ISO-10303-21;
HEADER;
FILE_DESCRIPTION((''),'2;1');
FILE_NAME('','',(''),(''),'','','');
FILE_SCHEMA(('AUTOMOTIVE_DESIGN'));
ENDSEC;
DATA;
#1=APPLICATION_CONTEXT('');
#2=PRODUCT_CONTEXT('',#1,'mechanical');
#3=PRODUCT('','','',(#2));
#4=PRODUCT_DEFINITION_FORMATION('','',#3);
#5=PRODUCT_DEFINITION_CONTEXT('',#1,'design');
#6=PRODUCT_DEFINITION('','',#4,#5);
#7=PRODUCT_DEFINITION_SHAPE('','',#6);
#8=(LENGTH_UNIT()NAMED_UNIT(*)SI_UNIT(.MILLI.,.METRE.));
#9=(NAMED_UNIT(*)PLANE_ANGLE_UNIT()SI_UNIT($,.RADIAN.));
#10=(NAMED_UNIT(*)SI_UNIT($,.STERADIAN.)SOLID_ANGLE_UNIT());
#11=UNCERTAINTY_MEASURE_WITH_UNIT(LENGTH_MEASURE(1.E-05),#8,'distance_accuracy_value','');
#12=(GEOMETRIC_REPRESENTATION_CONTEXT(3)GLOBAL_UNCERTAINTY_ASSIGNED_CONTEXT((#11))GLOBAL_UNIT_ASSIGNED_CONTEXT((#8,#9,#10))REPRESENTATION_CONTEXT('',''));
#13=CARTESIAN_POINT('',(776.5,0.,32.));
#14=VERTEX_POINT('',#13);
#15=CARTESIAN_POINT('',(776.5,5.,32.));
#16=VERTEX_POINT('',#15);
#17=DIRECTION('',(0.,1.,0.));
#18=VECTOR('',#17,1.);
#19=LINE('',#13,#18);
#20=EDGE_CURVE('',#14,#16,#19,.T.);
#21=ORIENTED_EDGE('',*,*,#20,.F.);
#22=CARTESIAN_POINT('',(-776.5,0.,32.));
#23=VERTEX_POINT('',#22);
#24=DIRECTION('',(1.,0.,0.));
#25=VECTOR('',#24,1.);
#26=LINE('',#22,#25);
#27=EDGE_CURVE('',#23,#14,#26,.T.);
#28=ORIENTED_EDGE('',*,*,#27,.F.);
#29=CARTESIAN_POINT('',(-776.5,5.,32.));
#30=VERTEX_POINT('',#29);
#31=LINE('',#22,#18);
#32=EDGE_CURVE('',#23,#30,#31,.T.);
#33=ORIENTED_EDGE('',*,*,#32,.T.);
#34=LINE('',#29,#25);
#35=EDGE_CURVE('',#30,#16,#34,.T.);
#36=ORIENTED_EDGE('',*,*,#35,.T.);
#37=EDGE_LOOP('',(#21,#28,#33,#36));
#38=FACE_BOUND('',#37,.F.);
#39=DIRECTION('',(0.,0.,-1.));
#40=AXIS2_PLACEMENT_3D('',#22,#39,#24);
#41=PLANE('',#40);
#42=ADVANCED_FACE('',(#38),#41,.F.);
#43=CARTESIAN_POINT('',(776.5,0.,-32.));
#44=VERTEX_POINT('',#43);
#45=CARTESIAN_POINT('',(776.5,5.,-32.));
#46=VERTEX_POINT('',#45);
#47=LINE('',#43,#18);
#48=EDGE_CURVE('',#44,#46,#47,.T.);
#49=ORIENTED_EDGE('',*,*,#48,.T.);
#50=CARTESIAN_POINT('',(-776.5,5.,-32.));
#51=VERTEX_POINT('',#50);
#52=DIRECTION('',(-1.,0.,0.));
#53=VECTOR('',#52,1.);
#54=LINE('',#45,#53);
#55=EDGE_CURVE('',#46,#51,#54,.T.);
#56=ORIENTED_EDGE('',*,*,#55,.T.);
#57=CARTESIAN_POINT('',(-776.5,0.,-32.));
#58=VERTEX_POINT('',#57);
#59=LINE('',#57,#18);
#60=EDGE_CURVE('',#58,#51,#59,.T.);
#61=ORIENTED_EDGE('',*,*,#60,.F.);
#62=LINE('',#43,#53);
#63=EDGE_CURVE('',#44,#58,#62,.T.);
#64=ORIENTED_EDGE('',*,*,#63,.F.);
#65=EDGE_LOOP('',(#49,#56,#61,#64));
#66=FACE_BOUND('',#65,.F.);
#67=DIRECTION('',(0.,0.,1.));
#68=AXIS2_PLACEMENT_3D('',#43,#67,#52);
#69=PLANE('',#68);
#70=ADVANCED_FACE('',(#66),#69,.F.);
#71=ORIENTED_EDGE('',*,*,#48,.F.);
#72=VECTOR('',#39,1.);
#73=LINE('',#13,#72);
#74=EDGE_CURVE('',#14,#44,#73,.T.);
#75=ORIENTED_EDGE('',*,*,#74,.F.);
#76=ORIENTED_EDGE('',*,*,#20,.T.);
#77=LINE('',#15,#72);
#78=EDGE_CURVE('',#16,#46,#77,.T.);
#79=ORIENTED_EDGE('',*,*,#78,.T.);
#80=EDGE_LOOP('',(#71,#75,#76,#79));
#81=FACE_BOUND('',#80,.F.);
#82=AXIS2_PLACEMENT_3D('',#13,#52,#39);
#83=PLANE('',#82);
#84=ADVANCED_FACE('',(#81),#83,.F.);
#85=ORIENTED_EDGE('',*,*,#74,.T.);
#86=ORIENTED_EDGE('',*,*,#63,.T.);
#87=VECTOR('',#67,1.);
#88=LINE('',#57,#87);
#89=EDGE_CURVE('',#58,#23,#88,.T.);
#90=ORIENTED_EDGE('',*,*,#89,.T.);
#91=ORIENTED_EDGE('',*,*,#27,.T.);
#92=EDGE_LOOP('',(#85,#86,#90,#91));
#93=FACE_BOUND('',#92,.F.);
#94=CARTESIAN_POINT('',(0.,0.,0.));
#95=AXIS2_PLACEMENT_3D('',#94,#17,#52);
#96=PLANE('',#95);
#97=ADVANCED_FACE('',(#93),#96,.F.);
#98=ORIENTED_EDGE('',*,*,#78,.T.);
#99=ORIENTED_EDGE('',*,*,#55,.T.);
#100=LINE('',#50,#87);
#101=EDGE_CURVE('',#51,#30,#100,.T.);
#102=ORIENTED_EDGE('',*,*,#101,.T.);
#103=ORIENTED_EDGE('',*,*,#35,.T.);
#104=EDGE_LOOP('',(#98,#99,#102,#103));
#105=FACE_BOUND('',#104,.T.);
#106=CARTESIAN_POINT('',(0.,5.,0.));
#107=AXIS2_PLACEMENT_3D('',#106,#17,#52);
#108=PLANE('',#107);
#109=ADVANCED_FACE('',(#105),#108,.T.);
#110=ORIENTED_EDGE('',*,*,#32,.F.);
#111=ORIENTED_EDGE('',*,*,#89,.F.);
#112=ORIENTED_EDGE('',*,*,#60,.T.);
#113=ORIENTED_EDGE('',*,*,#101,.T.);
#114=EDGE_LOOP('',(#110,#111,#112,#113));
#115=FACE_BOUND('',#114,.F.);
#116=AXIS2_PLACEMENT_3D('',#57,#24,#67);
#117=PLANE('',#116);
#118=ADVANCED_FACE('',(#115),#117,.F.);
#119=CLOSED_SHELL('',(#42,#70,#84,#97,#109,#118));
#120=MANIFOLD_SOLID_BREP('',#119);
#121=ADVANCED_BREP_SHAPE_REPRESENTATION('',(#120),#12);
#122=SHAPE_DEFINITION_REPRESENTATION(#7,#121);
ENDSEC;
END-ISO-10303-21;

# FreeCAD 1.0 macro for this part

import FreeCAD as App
import Part
import Sketcher
from FreeCAD import Vector

doc = App.newDocument("Part")
body = doc.addObject("PartDesign::Body", "Body")

# Sketch on XZ plane
sketch1 = body.newObject("Sketcher::SketchObject", "Sketch")
sketch1.AttachmentSupport = (doc.getObject("XZ_Plane"), [""])
sketch1.MapMode = "FlatFace"
sketch1.addGeometry([
    Part.LineSegment(Vector(-776, -32, 0), Vector(-776, 32, 0)),
    Part.LineSegment(Vector(-776, 32, 0), Vector(776, 32, 0)),
    Part.LineSegment(Vector(776, 32, 0), Vector(776, -32, 0)),
    Part.LineSegment(Vector(776, -32, 0), Vector(-776, -32, 0)),
], False)
sketch1.addConstraint([
    Sketcher.Constraint("Coincident", 0, 2, 1, 1),
    Sketcher.Constraint("Coincident", 1, 2, 2, 1),
    Sketcher.Constraint("Coincident", 2, 2, 3, 1),
    Sketcher.Constraint("Coincident", 3, 2, 0, 1),
    Sketcher.Constraint("Vertical", 0),
    Sketcher.Constraint("Horizontal", 1),
    Sketcher.Constraint("Vertical", 2),
    Sketcher.Constraint("Horizontal", 3),
    Sketcher.Constraint("Symmetric", 0, 2, 2, 2, -1, 1),
    Sketcher.Constraint("DistanceX", 1, 1, 1, 2, 1553.0),
    Sketcher.Constraint("DistanceY", 0, 1, 0, 2, 64.0),
])
pad1 = body.newObject("PartDesign::Pad", "Pad")
pad1.Profile = sketch1
pad1.Length = 5
pad1.Reversed = True

doc.recompute()
